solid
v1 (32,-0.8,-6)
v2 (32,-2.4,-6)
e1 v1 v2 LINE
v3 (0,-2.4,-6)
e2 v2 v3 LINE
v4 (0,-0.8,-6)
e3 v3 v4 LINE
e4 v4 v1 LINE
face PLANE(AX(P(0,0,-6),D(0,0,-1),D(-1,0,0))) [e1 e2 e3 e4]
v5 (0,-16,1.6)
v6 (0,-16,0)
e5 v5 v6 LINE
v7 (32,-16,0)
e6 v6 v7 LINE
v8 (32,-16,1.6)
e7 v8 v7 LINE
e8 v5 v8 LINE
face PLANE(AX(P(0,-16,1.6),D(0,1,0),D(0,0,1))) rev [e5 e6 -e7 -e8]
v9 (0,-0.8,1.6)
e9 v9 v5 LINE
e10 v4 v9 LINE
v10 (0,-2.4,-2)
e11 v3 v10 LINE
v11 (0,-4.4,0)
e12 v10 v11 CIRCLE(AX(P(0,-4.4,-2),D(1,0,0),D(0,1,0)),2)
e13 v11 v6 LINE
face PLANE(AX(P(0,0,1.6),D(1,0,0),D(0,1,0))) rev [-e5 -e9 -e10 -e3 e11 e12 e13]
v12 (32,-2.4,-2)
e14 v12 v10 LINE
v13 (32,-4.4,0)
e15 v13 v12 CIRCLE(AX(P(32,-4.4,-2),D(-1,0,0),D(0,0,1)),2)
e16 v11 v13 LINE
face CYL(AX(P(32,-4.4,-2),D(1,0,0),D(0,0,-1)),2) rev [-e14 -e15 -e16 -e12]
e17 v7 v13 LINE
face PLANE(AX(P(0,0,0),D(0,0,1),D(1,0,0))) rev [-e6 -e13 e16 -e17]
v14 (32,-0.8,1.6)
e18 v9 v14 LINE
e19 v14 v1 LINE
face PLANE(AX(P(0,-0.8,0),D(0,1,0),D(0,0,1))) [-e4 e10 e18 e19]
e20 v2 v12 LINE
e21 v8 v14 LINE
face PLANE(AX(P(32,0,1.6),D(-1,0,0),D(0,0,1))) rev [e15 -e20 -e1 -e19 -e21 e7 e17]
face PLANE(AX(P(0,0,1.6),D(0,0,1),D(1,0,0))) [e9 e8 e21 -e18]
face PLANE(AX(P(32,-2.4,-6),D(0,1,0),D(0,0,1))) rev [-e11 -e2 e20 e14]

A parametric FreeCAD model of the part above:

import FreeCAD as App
import Part
import Sketcher
from FreeCAD import Vector
Q = App.Units.Quantity


def edges_at(feature, points):
    """Names of the edges that pass closest to the given points."""
    edges = feature.Shape.Edges
    near = lambda p: min(range(len(edges)), key=lambda i: edges[i].distToShape(Part.Vertex(*p))[0])
    return sorted({f"Edge{near(p) + 1}" for p in points})

doc = App.newDocument("Part")
body = doc.addObject("PartDesign::Body", "Body")

# Sketch on XY plane
sketch1 = body.newObject("Sketcher::SketchObject", "Sketch")
sketch1.AttachmentSupport = (doc.getObject("XY_Plane"), [""])
sketch1.MapMode = "FlatFace"
sketch1.addGeometry([
    Part.LineSegment(Vector(0, 0, 0), Vector(0, -16, 0)),
    Part.LineSegment(Vector(0, -16, 0), Vector(32, -16, 0)),
    Part.LineSegment(Vector(32, -16, 0), Vector(32, 0, 0)),
    Part.LineSegment(Vector(32, 0, 0), Vector(0, 0, 0)),
], False)
sketch1.addConstraint([
    Sketcher.Constraint("Coincident", 0, 2, 1, 1),
    Sketcher.Constraint("Coincident", 1, 2, 2, 1),
    Sketcher.Constraint("Coincident", 2, 2, 3, 1),
    Sketcher.Constraint("Coincident", 3, 2, 0, 1),
    Sketcher.Constraint("Vertical", 0),
    Sketcher.Constraint("Horizontal", 1),
    Sketcher.Constraint("Vertical", 2),
    Sketcher.Constraint("Horizontal", 3),
    Sketcher.Constraint("Coincident", 3, 2, -1, 1),
    Sketcher.Constraint("DistanceX", 1, 1, 1, 2, Q("32 mm")),
    Sketcher.Constraint("DistanceY", 0, 2, 0, 1, Q("16 mm")),
])
pad1 = body.newObject("PartDesign::Pad", "Pad")
pad1.Profile = sketch1
pad1.Length = 1.6

# Sketch on XY plane
sketch2 = body.newObject("Sketcher::SketchObject", "Sketch001")
sketch2.AttachmentSupport = (doc.getObject("XY_Plane"), [""])
sketch2.MapMode = "FlatFace"
sketch2.addGeometry([
    Part.LineSegment(Vector(32, 0, 0), Vector(32, -2.4, 0)),
    Part.LineSegment(Vector(32, -2.4, 0), Vector(0, -2.4, 0)),
    Part.LineSegment(Vector(0, -2.4, 0), Vector(0, 0, 0)),
    Part.LineSegment(Vector(0, 0, 0), Vector(32, 0, 0)),
], False)
sketch2.addConstraint([
    Sketcher.Constraint("Coincident", 0, 2, 1, 1),
    Sketcher.Constraint("Coincident", 1, 2, 2, 1),
    Sketcher.Constraint("Coincident", 2, 2, 3, 1),
    Sketcher.Constraint("Coincident", 3, 2, 0, 1),
    Sketcher.Constraint("Vertical", 0),
    Sketcher.Constraint("Horizontal", 1),
    Sketcher.Constraint("Vertical", 2),
    Sketcher.Constraint("Horizontal", 3),
    Sketcher.Constraint("Coincident", 2, 2, -1, 1),
    Sketcher.Constraint("DistanceX", 1, 2, 1, 1, Q("32 mm")),
    Sketcher.Constraint("DistanceY", 0, 2, 0, 1, Q("2.4 mm")),
])
pad2 = body.newObject("PartDesign::Pad", "Pad001")
pad2.Profile = sketch2
pad2.Length = 6
pad2.Reversed = True

# Sketch on XZ plane
sketch3 = body.newObject("Sketcher::SketchObject", "Sketch002")
sketch3.AttachmentSupport = (doc.getObject("XZ_Plane"), [""])
sketch3.MapMode = "FlatFace"
sketch3.addGeometry([
    Part.LineSegment(Vector(0, -6, 0), Vector(0, 2, 0)),  # 0
    Part.LineSegment(Vector(0, 2, 0), Vector(32, 2, 0)),  # 1
    Part.LineSegment(Vector(32, 2, 0), Vector(32, -6, 0)),  # 2
    Part.LineSegment(Vector(32, -6, 0), Vector(0, -6, 0)),  # 3
    Part.LineSegment(Vector(31, 1, 0), Vector(1, 1, 0)),  # 4
    Part.LineSegment(Vector(1, 1, 0), Vector(1, -5, 0)),  # 5
    Part.LineSegment(Vector(1, -5, 0), Vector(31, -5, 0)),  # 6
    Part.LineSegment(Vector(31, -5, 0), Vector(31, 1, 0)),  # 7
], False)
sketch3.addConstraint([
    Sketcher.Constraint("Coincident", 0, 2, 1, 1),
    Sketcher.Constraint("Coincident", 1, 2, 2, 1),
    Sketcher.Constraint("Coincident", 2, 2, 3, 1),
    Sketcher.Constraint("Coincident", 3, 2, 0, 1),
    Sketcher.Constraint("Coincident", 4, 2, 5, 1),
    Sketcher.Constraint("Coincident", 5, 2, 6, 1),
    Sketcher.Constraint("Coincident", 6, 2, 7, 1),
    Sketcher.Constraint("Coincident", 7, 2, 4, 1),
    Sketcher.Constraint("Vertical", 0),
    Sketcher.Constraint("Horizontal", 1),
    Sketcher.Constraint("Vertical", 2),
    Sketcher.Constraint("Horizontal", 3),
    Sketcher.Constraint("Horizontal", 4),
    Sketcher.Constraint("Vertical", 5),
    Sketcher.Constraint("Horizontal", 6),
    Sketcher.Constraint("Vertical", 7),
    Sketcher.Constraint("PointOnObject", 0, 2, -2),
    Sketcher.Constraint("DistanceX", 1, 1, 1, 2, Q("32 mm")),
    Sketcher.Constraint("DistanceY", 5, 2, 5, 1, Q("6 mm")),
    Sketcher.Constraint("DistanceX", 4, 2, 4, 1, Q("30.4 mm")),
    Sketcher.Constraint("DistanceY", 0, 1, 0, 2, Q("7.6 mm")),
    Sketcher.Constraint("DistanceY", 2, 2, -1, 1, Q("6 mm")),
    Sketcher.Constraint("DistanceX", -1, 1, 4, 2, Q("0.8 mm")),
    Sketcher.Constraint("DistanceY", -1, 1, 4, 2, Q("0.8 mm")),
])
pad3 = body.newObject("PartDesign::Pad", "Pad002")
pad3.Profile = sketch3
pad3.Length = 4.8
pad3.Reversed = True

# Sketch on XZ plane
sketch4 = body.newObject("Sketcher::SketchObject", "Sketch003")
sketch4.AttachmentSupport = (doc.getObject("XZ_Plane"), [""])
sketch4.MapMode = "FlatFace"
sketch4.AttachmentOffset = App.Placement(Vector(0, 0, -4.8), App.Rotation())
sketch4.addGeometry([
    Part.LineSegment(Vector(10, 0.8, 0), Vector(10, 1.6, 0)),
    Part.LineSegment(Vector(10, 1.6, 0), Vector(22, 1.6, 0)),
    Part.LineSegment(Vector(22, 1.6, 0), Vector(22, 0.8, 0)),
    Part.LineSegment(Vector(22, 0.8, 0), Vector(10, 0.8, 0)),
], False)
sketch4.addConstraint([
    Sketcher.Constraint("Coincident", 0, 2, 1, 1),
    Sketcher.Constraint("Coincident", 1, 2, 2, 1),
    Sketcher.Constraint("Coincident", 2, 2, 3, 1),
    Sketcher.Constraint("Coincident", 3, 2, 0, 1),
    Sketcher.Constraint("Vertical", 0),
    Sketcher.Constraint("Horizontal", 1),
    Sketcher.Constraint("Vertical", 2),
    Sketcher.Constraint("Horizontal", 3),
    Sketcher.Constraint("DistanceX", 1, 1, 1, 2, Q("12 mm")),
    Sketcher.Constraint("DistanceY", 0, 1, 0, 2, Q("0.8 mm")),
    Sketcher.Constraint("DistanceX", -1, 1, 0, 2, Q("10 mm")),
    Sketcher.Constraint("DistanceY", -1, 1, 0, 2, Q("1.6 mm")),
])
pocket1 = body.newObject("PartDesign::Pocket", "Pocket")
pocket1.Profile = sketch4
pocket1.Length = 4.8
pocket1.Reversed = True

# Sketch on XY plane
sketch5 = body.newObject("Sketcher::SketchObject", "Sketch004")
sketch5.AttachmentSupport = (doc.getObject("XY_Plane"), [""])
sketch5.MapMode = "FlatFace"
sketch5.AttachmentOffset = App.Placement(Vector(0, 0, 1.6), App.Rotation())
sketch5.addGeometry([
    Part.LineSegment(Vector(10, 0, 0), Vector(10, -0.8, 0)),
    Part.LineSegment(Vector(10, -0.8, 0), Vector(36, -0.8, 0)),
    Part.LineSegment(Vector(36, -0.8, 0), Vector(36, 0, 0)),
    Part.LineSegment(Vector(36, 0, 0), Vector(10, 0, 0)),
], False)
sketch5.addConstraint([
    Sketcher.Constraint("Coincident", 0, 2, 1, 1),
    Sketcher.Constraint("Coincident", 1, 2, 2, 1),
    Sketcher.Constraint("Coincident", 2, 2, 3, 1),
    Sketcher.Constraint("Coincident", 3, 2, 0, 1),
    Sketcher.Constraint("Vertical", 0),
    Sketcher.Constraint("Horizontal", 1),
    Sketcher.Constraint("Vertical", 2),
    Sketcher.Constraint("Horizontal", 3),
    Sketcher.Constraint("PointOnObject", 2, 2, -1),
    Sketcher.Constraint("DistanceX", 1, 1, 1, 2, Q("26 mm")),
    Sketcher.Constraint("DistanceY", 0, 2, 0, 1, Q("0.8 mm")),
    Sketcher.Constraint("DistanceX", -1, 1, 0, 2, Q("10 mm")),
])
pad4 = body.newObject("PartDesign::Pad", "Pad003")
pad4.Profile = sketch5
pad4.Length = 12

# Sketch on XZ plane
sketch6 = body.newObject("Sketcher::SketchObject", "Sketch005")
sketch6.AttachmentSupport = (doc.getObject("XZ_Plane"), [""])
sketch6.MapMode = "FlatFace"
sketch6.addGeometry([
    Part.LineSegment(Vector(10, 0.8, 0), Vector(10, 13.6, 0)),  # 0
    Part.LineSegment(Vector(10, 13.6, 0), Vector(10.8, 13.6, 0)),  # 1
    Part.LineSegment(Vector(10.8, 13.6, 0), Vector(10.8, 0.8, 0)),  # 2
    Part.LineSegment(Vector(10.8, 0.8, 0), Vector(10, 0.8, 0)),  # 3
    Part.LineSegment(Vector(35.2, 0.8, 0), Vector(35.2, 13.6, 0)),  # 4
    Part.LineSegment(Vector(35.2, 13.6, 0), Vector(36, 13.6, 0)),  # 5
    Part.LineSegment(Vector(36, 13.6, 0), Vector(36, 0.8, 0)),  # 6
    Part.LineSegment(Vector(36, 0.8, 0), Vector(35.2, 0.8, 0)),  # 7
], False)
sketch6.addConstraint([
    Sketcher.Constraint("Coincident", 0, 2, 1, 1),
    Sketcher.Constraint("Coincident", 1, 2, 2, 1),
    Sketcher.Constraint("Coincident", 2, 2, 3, 1),
    Sketcher.Constraint("Coincident", 3, 2, 0, 1),
    Sketcher.Constraint("Coincident", 4, 2, 5, 1),
    Sketcher.Constraint("Coincident", 5, 2, 6, 1),
    Sketcher.Constraint("Coincident", 6, 2, 7, 1),
    Sketcher.Constraint("Coincident", 7, 2, 4, 1),
    Sketcher.Constraint("Vertical", 0),
    Sketcher.Constraint("Horizontal", 1),
    Sketcher.Constraint("Vertical", 2),
    Sketcher.Constraint("Horizontal", 3),
    Sketcher.Constraint("Vertical", 4),
    Sketcher.Constraint("Horizontal", 5),
    Sketcher.Constraint("Vertical", 6),
    Sketcher.Constraint("Horizontal", 7),
    Sketcher.Constraint("Horizontal", 1, 2, 4, 2),
    Sketcher.Constraint("Horizontal", 3, 2, 6, 2),
    Sketcher.Constraint("Equal", 3, 5),
    Sketcher.Constraint("DistanceX", 1, 1, 1, 2, Q("0.8 mm")),
    Sketcher.Constraint("DistanceY", 0, 1, 0, 2, Q("12.8 mm")),
    Sketcher.Constraint("DistanceX", -1, 1, 0, 2, Q("10 mm")),
    Sketcher.Constraint("DistanceX", -1, 1, 5, 2, Q("36 mm")),
    Sketcher.Constraint("DistanceY", -1, 1, 0, 2, Q("13.6 mm")),
])
pad5 = body.newObject("PartDesign::Pad", "Pad004")
pad5.Profile = sketch6
pad5.Length = 4.8
pad5.Reversed = True

# Sketch on XZ plane
sketch7 = body.newObject("Sketcher::SketchObject", "Sketch006")
sketch7.AttachmentSupport = (doc.getObject("XZ_Plane"), [""])
sketch7.MapMode = "FlatFace"
sketch7.AttachmentOffset = App.Placement(Vector(0, 0, -4.8), App.Rotation())
sketch7.addGeometry([
    Part.LineSegment(Vector(-6, -20, 0), Vector(-6, 25, 0)),
    Part.LineSegment(Vector(-6, 25, 0), Vector(69, 25, 0)),
    Part.LineSegment(Vector(69, 25, 0), Vector(69, -20, 0)),
    Part.LineSegment(Vector(69, -20, 0), Vector(-6, -20, 0)),
], False)
sketch7.addConstraint([
    Sketcher.Constraint("Coincident", 0, 2, 1, 1),
    Sketcher.Constraint("Coincident", 1, 2, 2, 1),
    Sketcher.Constraint("Coincident", 2, 2, 3, 1),
    Sketcher.Constraint("Coincident", 3, 2, 0, 1),
    Sketcher.Constraint("Vertical", 0),
    Sketcher.Constraint("Horizontal", 1),
    Sketcher.Constraint("Vertical", 2),
    Sketcher.Constraint("Horizontal", 3),
    Sketcher.Constraint("DistanceX", 1, 1, 1, 2, Q("74.676808 mm")),
    Sketcher.Constraint("DistanceY", 0, 1, 0, 2, Q("45.618872 mm")),
    Sketcher.Constraint("DistanceX", 0, 2, -1, 1, Q("5.904779 mm")),
    Sketcher.Constraint("DistanceY", -1, 1, 0, 2, Q("25.310939 mm")),
])
pocket2 = body.newObject("PartDesign::Pocket", "Pocket001")
pocket2.Profile = sketch7
pocket2.Length = 5.6
pocket2.Reversed = True
doc.recompute()

fillet = body.newObject("PartDesign::Fillet", "Fillet")
fillet.Base = (pocket2, edges_at(pocket2, [(16, -2.4, 0)]))
fillet.Radius = 2

doc.recompute()
